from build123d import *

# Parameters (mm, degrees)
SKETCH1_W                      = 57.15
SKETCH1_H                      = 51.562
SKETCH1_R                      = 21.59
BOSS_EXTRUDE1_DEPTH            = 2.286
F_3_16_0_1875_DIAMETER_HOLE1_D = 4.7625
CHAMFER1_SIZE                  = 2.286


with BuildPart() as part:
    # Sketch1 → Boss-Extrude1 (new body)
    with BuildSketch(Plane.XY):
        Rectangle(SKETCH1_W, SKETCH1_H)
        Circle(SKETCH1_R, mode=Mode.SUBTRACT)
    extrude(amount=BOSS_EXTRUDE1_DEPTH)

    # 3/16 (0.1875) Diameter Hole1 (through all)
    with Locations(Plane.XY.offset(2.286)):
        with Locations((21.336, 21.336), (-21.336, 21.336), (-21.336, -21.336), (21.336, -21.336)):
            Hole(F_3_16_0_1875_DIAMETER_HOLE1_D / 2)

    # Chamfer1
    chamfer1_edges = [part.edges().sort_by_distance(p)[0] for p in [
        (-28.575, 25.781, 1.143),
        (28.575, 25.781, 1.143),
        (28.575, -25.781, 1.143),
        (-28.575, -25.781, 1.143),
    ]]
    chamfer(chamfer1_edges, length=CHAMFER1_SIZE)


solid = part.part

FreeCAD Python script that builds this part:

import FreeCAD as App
import Part
import Sketcher

V = App.Vector
Q = App.Units.Quantity


def edges_at(feature, points):
    """Names of the edges that pass closest to the given points."""
    edges = feature.Shape.Edges
    near = lambda p: min(range(len(edges)), key=lambda i: edges[i].distToShape(Part.Vertex(*p))[0])
    return sorted({f"Edge{near(p) + 1}" for p in points})

doc = App.newDocument("Part")
body = doc.addObject("PartDesign::Body", "Body")

sketch1 = body.newObject("Sketcher::SketchObject", "Sketch")
sketch1.AttachmentSupport = (doc.getObject("XY_Plane"), [""])
sketch1.MapMode = "FlatFace"
sketch1.addGeometry([
    Part.LineSegment(V(-29, 26, 0), V(-29, -26, 0)),
    Part.LineSegment(V(-29, -26, 0), V(29, -26, 0)),
    Part.LineSegment(V(29, -26, 0), V(29, 26, 0)),
    Part.LineSegment(V(29, 26, 0), V(-29, 26, 0)),
    Part.Circle(V(0, 0, 0), V(0, 0, 1), 22),
], False)
sketch1.addConstraint([
    Sketcher.Constraint("Coincident", 0, 2, 1, 1),
    Sketcher.Constraint("Coincident", 1, 2, 2, 1),
    Sketcher.Constraint("Coincident", 2, 2, 3, 1),
    Sketcher.Constraint("Coincident", 3, 2, 0, 1),
    Sketcher.Constraint("Vertical", 0),
    Sketcher.Constraint("Horizontal", 1),
    Sketcher.Constraint("Vertical", 2),
    Sketcher.Constraint("Horizontal", 3),
    Sketcher.Constraint("Coincident", 4, 3, -1, 1),
    Sketcher.Constraint("Symmetric", 0, 2, 2, 2, -1, 1),
    Sketcher.Constraint("Diameter", 4, Q("1.7 in")),
    Sketcher.Constraint("DistanceX", 1, 1, 1, 2, Q("2.25 in")),
    Sketcher.Constraint("DistanceY", 0, 2, 0, 1, Q("2.03 in")),
])
pad1 = body.newObject("PartDesign::Pad", "Pad")
pad1.Profile = sketch1
pad1.Length = Q("0.09 in")

sketch2 = body.newObject("Sketcher::SketchObject", "Sketch001")
sketch2.AttachmentSupport = (doc.getObject("XY_Plane"), [""])
sketch2.MapMode = "FlatFace"
sketch2.AttachmentOffset = App.Placement(V(0, 0, 0.09 * 25.4), App.Rotation())
sketch2.addGeometry([
    Part.Circle(V(21.3, 21.3, 0), V(0, 0, 1), 2.4),
    Part.Circle(V(-21.3, 21.3, 0), V(0, 0, 1), 2.4),
    Part.Circle(V(-21.3, -21.3, 0), V(0, 0, 1), 2.4),
    Part.Circle(V(21.3, -21.3, 0), V(0, 0, 1), 2.4),
], False)
sketch2.addConstraint([
    Sketcher.Constraint("Equal", 0, 1),
    Sketcher.Constraint("Equal", 1, 2),
    Sketcher.Constraint("Equal", 2, 3),
    Sketcher.Constraint("Symmetric", 0, 3, 2, 3, -1, 1),
    Sketcher.Constraint("Symmetric", 1, 3, 3, 3, -1, 1),
    Sketcher.Constraint("Symmetric", 0, 3, 1, 3, -2),
    Sketcher.Constraint("Diameter", 0, Q("0.1875 in")),
    Sketcher.Constraint("DistanceX", -1, 1, 0, 3, Q("0.84 in")),
    Sketcher.Constraint("DistanceY", -1, 1, 0, 3, Q("0.84 in")),
])
doc.recompute()
hole = body.newObject("PartDesign::Hole", "Hole")
hole.Profile = sketch2
hole.ThreadType = "None"
hole.Diameter = Q("0.1875 in")
hole.DepthType = "ThroughAll"
doc.recompute()

chamfer = body.newObject("PartDesign::Chamfer", "Chamfer")
chamfer.Base = (hole, edges_at(hole, [
    (-28.575, 25.781, 1.143),
    (28.575, 25.781, 1.143),
    (28.575, -25.781, 1.143),
    (-28.575, -25.781, 1.143),
]))
chamfer.Size = Q("0.09 in")

doc.recompute()
